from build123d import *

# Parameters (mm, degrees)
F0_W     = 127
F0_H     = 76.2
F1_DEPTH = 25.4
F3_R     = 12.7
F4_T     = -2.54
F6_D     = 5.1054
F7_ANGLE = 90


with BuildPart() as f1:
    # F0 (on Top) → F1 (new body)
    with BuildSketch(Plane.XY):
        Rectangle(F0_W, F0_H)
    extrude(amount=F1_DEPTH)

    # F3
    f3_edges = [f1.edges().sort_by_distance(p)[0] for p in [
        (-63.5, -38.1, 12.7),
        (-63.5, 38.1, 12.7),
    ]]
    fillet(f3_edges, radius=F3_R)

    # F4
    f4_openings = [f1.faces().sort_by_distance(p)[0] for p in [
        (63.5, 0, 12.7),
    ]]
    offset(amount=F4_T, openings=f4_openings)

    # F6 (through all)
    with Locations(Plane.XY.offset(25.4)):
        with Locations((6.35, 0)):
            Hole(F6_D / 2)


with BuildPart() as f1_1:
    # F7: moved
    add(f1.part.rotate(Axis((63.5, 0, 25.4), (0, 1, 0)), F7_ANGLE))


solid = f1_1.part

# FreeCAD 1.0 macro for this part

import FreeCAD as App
import Part
import Sketcher

V = App.Vector
Q = App.Units.Quantity


def edges_at(feature, points):
    """Names of the edges that pass closest to the given points."""
    edges = feature.Shape.Edges
    near = lambda p: min(range(len(edges)), key=lambda i: edges[i].distToShape(Part.Vertex(*p))[0])
    return sorted({f"Edge{near(p) + 1}" for p in points})


def faces_at(feature, points):
    """Names of the faces that lie closest to the given points."""
    faces = feature.Shape.Faces
    near = lambda p: min(range(len(faces)), key=lambda i: faces[i].distToShape(Part.Vertex(*p))[0])
    return sorted({f"Face{near(p) + 1}" for p in points})


def add_polygon(sketch, points):
    """Adds a closed chain of lines whose ends are joined by coincident constraints."""
    first, n = sketch.GeometryCount, len(points)
    for a, b in zip(points, points[1:] + points[:1]):
        sketch.addGeometry(Part.LineSegment(App.Vector(*a, 0), App.Vector(*b, 0)), False)
    for i in range(n):
        sketch.addConstraint(Sketcher.Constraint("Coincident", first + i, 2, first + (i + 1) % n, 1))

doc = App.newDocument("Part")
params = doc.addObject("Spreadsheet::Sheet", "Params")
for row, (alias, value) in enumerate([
    ("sketch1_width", "5 in"),
    ("sketch1_height", "3 in"),
    ("pad1_length", "1 in"),
    ("fillet_radius", "0.5 in"),
    ("thickness_wall", "0.1 in"),
    ("sketch2_diameter", "0.201 in"),
    ("hole_diameter", "0.201 in"),
], start=1):
    params.set(f"A{row}", alias)
    params.set(f"B{row}", "=" + value)
    params.setAlias(f"B{row}", alias)

body = doc.addObject("PartDesign::Body", "Body")

sketch1 = body.newObject("Sketcher::SketchObject", "Sketch")
sketch1.AttachmentSupport = (doc.getObject("XY_Plane"), [""])
sketch1.MapMode = "FlatFace"
add_polygon(sketch1, [(-63.5, 38.1), (-63.5, -38.1), (63.5, -38.1), (63.5, 38.1)])
sketch1.addConstraint(Sketcher.Constraint("Vertical", 0))
sketch1.addConstraint(Sketcher.Constraint("Horizontal", 1))
sketch1.addConstraint(Sketcher.Constraint("Vertical", 2))
sketch1.addConstraint(Sketcher.Constraint("Horizontal", 3))
sketch1.addConstraint(Sketcher.Constraint("Symmetric", 0, 2, 2, 2, -1, 1))
sketch1.addConstraint(Sketcher.Constraint("DistanceX", 1, 1, 1, 2, Q("5 in")))
sketch1.addConstraint(Sketcher.Constraint("DistanceY", 0, 2, 0, 1, Q("3 in")))
sketch1.setExpression("Constraints[9]", "Params.sketch1_width")
sketch1.setExpression("Constraints[10]", "Params.sketch1_height")
pad1 = body.newObject("PartDesign::Pad", "Pad")
pad1.Profile = sketch1
pad1.setExpression("Length", "Params.pad1_length")
doc.recompute()

fillet = body.newObject("PartDesign::Fillet", "Fillet")
fillet.Base = (pad1, edges_at(pad1, [(-63.5, -38.1, 12.7), (-63.5, 38.1, 12.7)]))
fillet.setExpression("Radius", "Params.fillet_radius")
doc.recompute()

thickness = body.newObject("PartDesign::Thickness", "Thickness")
thickness.Base = (fillet, faces_at(fillet, [(63.5, 0, 12.7)]))
thickness.setExpression("Value", "Params.thickness_wall")
thickness.Reversed = True
thickness.Join = "Arc"

sketch2 = body.newObject("Sketcher::SketchObject", "Sketch001")
sketch2.AttachmentSupport = (doc.getObject("XY_Plane"), [""])
sketch2.MapMode = "FlatFace"
sketch2.AttachmentOffset = App.Placement(V(0, 0, 1 * 25.4), App.Rotation())
sketch2.addGeometry(Part.Circle(V(6.35, 0, 0), V(0, 0, 1), 2.5527), False)
sketch2.addConstraint(Sketcher.Constraint("PointOnObject", 0, 3, -1))
sketch2.addConstraint(Sketcher.Constraint("Diameter", 0, Q("0.201 in")))
sketch2.addConstraint(Sketcher.Constraint("DistanceX", -1, 1, 0, 3, Q("0.25 in")))
sketch2.setExpression("Constraints[1]", "Params.sketch2_diameter")
doc.recompute()
hole = body.newObject("PartDesign::Hole", "Hole")
hole.Profile = sketch2
hole.ThreadType = "None"
hole.setExpression("Diameter", "Params.hole_diameter")
hole.DepthType = "ThroughAll"
body2 = doc.addObject("PartDesign::Body", "Body001")
doc.recompute()

body.Placement = App.Placement(V(38.1, 0, 88.9), App.Rotation(V(0, 1, 0), 90))
boolean = body2.newObject("PartDesign::Boolean", "Boolean")
boolean.Type = "Fuse"
boolean.addObjects([body])

doc.recompute()
